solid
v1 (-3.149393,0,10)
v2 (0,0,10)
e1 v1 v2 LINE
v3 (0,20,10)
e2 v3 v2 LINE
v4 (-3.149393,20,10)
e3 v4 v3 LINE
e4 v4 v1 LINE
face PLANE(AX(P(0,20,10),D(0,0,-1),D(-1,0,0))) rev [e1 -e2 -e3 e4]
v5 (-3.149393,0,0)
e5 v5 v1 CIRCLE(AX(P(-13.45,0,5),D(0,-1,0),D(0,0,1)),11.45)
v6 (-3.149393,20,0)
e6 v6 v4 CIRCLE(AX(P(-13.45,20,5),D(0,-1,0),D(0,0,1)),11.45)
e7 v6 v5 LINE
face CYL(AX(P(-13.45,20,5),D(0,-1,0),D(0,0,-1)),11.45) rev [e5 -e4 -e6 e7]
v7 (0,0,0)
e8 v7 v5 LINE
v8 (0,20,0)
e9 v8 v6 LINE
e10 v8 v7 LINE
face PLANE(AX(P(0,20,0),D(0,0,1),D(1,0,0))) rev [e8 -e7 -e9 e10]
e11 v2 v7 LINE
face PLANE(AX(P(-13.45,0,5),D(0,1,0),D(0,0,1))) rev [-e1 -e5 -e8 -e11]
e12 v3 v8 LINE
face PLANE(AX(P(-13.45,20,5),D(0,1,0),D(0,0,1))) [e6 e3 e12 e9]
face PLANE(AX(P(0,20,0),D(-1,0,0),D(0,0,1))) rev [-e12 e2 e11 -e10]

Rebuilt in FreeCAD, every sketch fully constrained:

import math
import FreeCAD as App
import Part
import Sketcher
from FreeCAD import Vector
Q = App.Units.Quantity

doc = App.newDocument("Part")
params = doc.addObject("Spreadsheet::Sheet", "Params")
for row, (alias, value) in enumerate([
    ("sketch1_height", "10 mm"),
    ("sketch1_radius", "11.45 mm"),
    ("pad1_length", "20 mm"),
], start=1):
    params.set(f"A{row}", alias)
    params.set(f"B{row}", "=" + value)
    params.setAlias(f"B{row}", alias)

body = doc.addObject("PartDesign::Body", "Body")

# Sketch on XZ plane
sketch1 = body.newObject("Sketcher::SketchObject", "Sketch")
sketch1.AttachmentSupport = (doc.getObject("XZ_Plane"), [""])
sketch1.MapMode = "FlatFace"
sketch1.addGeometry([
    Part.LineSegment(Vector(0, 10, 0), Vector(0, 0, 0)),
    Part.LineSegment(Vector(0, 0, 0), Vector(-3.1, 0, 0)),
    Part.ArcOfCircle(Part.Circle(Vector(-13.4, 5, 0), Vector(0, 0, 1), 11.4), math.radians(-26), math.radians(26)),
    Part.LineSegment(Vector(-3.1, 10, 0), Vector(0, 10, 0)),
], False)
sketch1.addConstraint([
    Sketcher.Constraint("Coincident", 0, 2, 1, 1),
    Sketcher.Constraint("Coincident", 1, 2, 2, 1),
    Sketcher.Constraint("Coincident", 2, 2, 3, 1),
    Sketcher.Constraint("Coincident", 3, 2, 0, 1),
    Sketcher.Constraint("Vertical", 0),
    Sketcher.Constraint("Horizontal", 1),
    Sketcher.Constraint("Horizontal", 3),
    Sketcher.Constraint("Coincident", 0, 2, -1, 1),
    Sketcher.Constraint("Vertical", 1, 2, 2, 2),
    Sketcher.Constraint("DistanceY", 0, 2, 0, 1, Q("10 mm")),
    Sketcher.Constraint("Radius", 2, Q("11.45 mm")),
    Sketcher.Constraint("DistanceX", 2, 3, -1, 1, Q("13.45 mm")),
])
sketch1.setExpression("Constraints[9]", "Params.sketch1_height")
sketch1.setExpression("Constraints[10]", "Params.sketch1_radius")
pad1 = body.newObject("PartDesign::Pad", "Pad")
pad1.Profile = sketch1
pad1.setExpression("Length", "Params.pad1_length")
pad1.Reversed = True

doc.recompute()
